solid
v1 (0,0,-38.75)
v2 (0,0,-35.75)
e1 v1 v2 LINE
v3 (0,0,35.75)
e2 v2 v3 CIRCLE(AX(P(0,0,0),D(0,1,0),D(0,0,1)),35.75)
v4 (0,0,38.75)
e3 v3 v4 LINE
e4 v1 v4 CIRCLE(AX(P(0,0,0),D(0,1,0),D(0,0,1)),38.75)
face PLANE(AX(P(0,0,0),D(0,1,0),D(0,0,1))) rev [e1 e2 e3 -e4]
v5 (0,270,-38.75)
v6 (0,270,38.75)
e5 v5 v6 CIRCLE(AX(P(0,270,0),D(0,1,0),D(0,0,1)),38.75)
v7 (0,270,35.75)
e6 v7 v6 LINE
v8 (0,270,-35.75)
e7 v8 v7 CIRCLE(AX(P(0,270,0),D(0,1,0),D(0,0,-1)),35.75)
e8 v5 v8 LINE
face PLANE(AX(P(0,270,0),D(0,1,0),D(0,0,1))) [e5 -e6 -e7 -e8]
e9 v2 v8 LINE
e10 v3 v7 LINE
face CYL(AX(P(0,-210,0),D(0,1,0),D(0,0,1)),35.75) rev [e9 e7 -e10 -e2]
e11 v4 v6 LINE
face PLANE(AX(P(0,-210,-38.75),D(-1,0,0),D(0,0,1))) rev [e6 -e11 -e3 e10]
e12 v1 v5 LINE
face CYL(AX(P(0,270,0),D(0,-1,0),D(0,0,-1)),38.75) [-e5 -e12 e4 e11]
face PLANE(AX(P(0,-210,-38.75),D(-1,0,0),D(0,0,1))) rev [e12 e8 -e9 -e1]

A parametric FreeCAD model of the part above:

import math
import FreeCAD as App
import Part
import Sketcher

V = App.Vector


def add_polygon(sketch, points):
    """Adds a closed chain of lines whose ends are joined by coincident constraints."""
    first, n = sketch.GeometryCount, len(points)
    for a, b in zip(points, points[1:] + points[:1]):
        sketch.addGeometry(Part.LineSegment(App.Vector(*a, 0), App.Vector(*b, 0)), False)
    for i in range(n):
        sketch.addConstraint(Sketcher.Constraint("Coincident", first + i, 2, first + (i + 1) % n, 1))

doc = App.newDocument("Part")
params = doc.addObject("Spreadsheet::Sheet", "Params")
for row, (alias, value) in enumerate([
    ("sketch1_diameter", "77.5 mm"),
    ("pad1_length", "270 mm"),
    ("sketch2_radius", "35.75 mm"),
    ("pocket1_length", "480 mm"),
    ("sketch3_height", "77.5 mm"),
    ("sketch3_width", "38.75 mm"),
    ("pocket2_length", "480 mm"),
], start=1):
    params.set(f"A{row}", alias)
    params.set(f"B{row}", "=" + value)
    params.setAlias(f"B{row}", alias)

body = doc.addObject("PartDesign::Body", "Body")

# Sketch on XZ plane
sketch1 = doc.addObject("Sketcher::SketchObject", "Sketch")
body.addObject(sketch1)
sketch1.AttachmentSupport = (doc.XZ_Plane, [""])
sketch1.MapMode = "FlatFace"
sketch1.addGeometry(Part.Circle(V(0, 0, 0), V(0, 0, 1), 38.75), False)
sketch1.addConstraint(Sketcher.Constraint("Coincident", 0, 3, -1, 1))
sketch1.addConstraint(Sketcher.Constraint("Diameter", 0, 77.5))
sketch1.setExpression("Constraints[1]", "Params.sketch1_diameter")
pad1 = doc.addObject("PartDesign::Pad", "Pad")
body.addObject(pad1)
pad1.Profile = sketch1
pad1.setExpression("Length", "Params.pad1_length")
pad1.Reversed = True

# Sketch on XZ plane
sketch2 = doc.addObject("Sketcher::SketchObject", "Sketch001")
body.addObject(sketch2)
sketch2.AttachmentSupport = (doc.XZ_Plane, [""])
sketch2.MapMode = "FlatFace"
sketch2.AttachmentOffset = App.Placement(V(0, 0, -270), App.Rotation())
sketch2.addGeometry(Part.LineSegment(V(0, 35.75, 0), V(0, -35.75, 0)), False)
sketch2.addGeometry(Part.ArcOfCircle(Part.Circle(V(0, 0, 0), V(0, 0, 1), 35.75), math.radians(90), math.radians(270)), False)
sketch2.addConstraint(Sketcher.Constraint("Coincident", 0, 1, 1, 1))
sketch2.addConstraint(Sketcher.Constraint("Coincident", 1, 2, 0, 2))
sketch2.addConstraint(Sketcher.Constraint("Vertical", 0))
sketch2.addConstraint(Sketcher.Constraint("Coincident", 1, 3, -1, 1))
sketch2.addConstraint(Sketcher.Constraint("PointOnObject", 0, 1, -2))
sketch2.addConstraint(Sketcher.Constraint("Radius", 1, 35.75))
sketch2.setExpression("Constraints[5]", "Params.sketch2_radius")
pocket1 = doc.addObject("PartDesign::Pocket", "Pocket")
body.addObject(pocket1)
pocket1.Profile = sketch2
pocket1.setExpression("Length", "Params.pocket1_length")
pocket1.Reversed = True

# Sketch on XZ plane
sketch3 = doc.addObject("Sketcher::SketchObject", "Sketch002")
body.addObject(sketch3)
sketch3.AttachmentSupport = (doc.XZ_Plane, [""])
sketch3.MapMode = "FlatFace"
sketch3.AttachmentOffset = App.Placement(V(0, 0, -270), App.Rotation())
add_polygon(sketch3, [(0, -38.75), (0, 38.75), (38.75, 38.75), (38.75, -38.75)])  # lines 0-3
sketch3.addConstraint(Sketcher.Constraint("Vertical", 0))
sketch3.addConstraint(Sketcher.Constraint("Horizontal", 1))
sketch3.addConstraint(Sketcher.Constraint("Vertical", 2))
sketch3.addConstraint(Sketcher.Constraint("Horizontal", 3))
sketch3.addConstraint(Sketcher.Constraint("Symmetric", 0, 2, 3, 2, -1, 1))
sketch3.addConstraint(Sketcher.Constraint("DistanceY", 0, 1, 0, 2, 77.5))
sketch3.addConstraint(Sketcher.Constraint("DistanceX", 1, 1, 1, 2, 38.75))
sketch3.setExpression("Constraints[9]", "Params.sketch3_height")
sketch3.setExpression("Constraints[10]", "Params.sketch3_width")
pocket2 = doc.addObject("PartDesign::Pocket", "Pocket001")
body.addObject(pocket2)
pocket2.Profile = sketch3
pocket2.setExpression("Length", "Params.pocket2_length")
pocket2.Reversed = True

doc.recompute()
